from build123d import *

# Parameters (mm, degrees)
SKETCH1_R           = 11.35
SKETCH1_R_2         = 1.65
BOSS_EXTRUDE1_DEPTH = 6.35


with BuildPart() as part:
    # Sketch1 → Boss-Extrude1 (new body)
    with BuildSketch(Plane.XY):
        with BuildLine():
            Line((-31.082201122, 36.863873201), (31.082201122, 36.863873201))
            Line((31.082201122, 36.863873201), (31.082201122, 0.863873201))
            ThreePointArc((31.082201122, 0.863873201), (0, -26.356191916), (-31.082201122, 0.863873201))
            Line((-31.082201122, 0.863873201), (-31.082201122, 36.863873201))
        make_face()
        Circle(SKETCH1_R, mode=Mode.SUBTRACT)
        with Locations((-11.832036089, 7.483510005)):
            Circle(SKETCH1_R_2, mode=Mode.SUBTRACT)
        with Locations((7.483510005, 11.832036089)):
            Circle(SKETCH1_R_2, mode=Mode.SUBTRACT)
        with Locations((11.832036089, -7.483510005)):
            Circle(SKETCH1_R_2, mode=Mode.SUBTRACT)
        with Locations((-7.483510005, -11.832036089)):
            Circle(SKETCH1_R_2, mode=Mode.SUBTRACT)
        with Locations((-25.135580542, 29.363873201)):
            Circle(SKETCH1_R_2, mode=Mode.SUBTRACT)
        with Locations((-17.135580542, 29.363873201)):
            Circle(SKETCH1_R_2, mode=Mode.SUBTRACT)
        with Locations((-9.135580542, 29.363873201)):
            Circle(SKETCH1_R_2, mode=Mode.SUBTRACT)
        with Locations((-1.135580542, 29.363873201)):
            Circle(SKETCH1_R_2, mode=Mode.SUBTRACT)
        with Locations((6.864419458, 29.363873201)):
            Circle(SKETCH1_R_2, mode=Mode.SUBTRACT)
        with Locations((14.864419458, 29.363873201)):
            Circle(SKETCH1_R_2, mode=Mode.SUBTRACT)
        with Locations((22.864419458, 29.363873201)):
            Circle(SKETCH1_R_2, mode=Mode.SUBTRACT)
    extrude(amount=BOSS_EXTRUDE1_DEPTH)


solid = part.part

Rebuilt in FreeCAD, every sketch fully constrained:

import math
import FreeCAD as App
import Part
import Sketcher

doc = App.newDocument("Part")
body = doc.addObject("PartDesign::Body", "Body")

sketch1 = body.newObject("Sketcher::SketchObject", "Sketch")
sketch1.AttachmentSupport = (doc.getObject("XY_Plane"), [""])
sketch1.MapMode = "FlatFace"
sketch1.addGeometry([
    Part.LineSegment(App.Vector(31.1, 36.9, 0), App.Vector(-31.1, 36.9, 0)),
    Part.LineSegment(App.Vector(-31.1, 36.9, 0), App.Vector(-31.1, 0.9, 0)),
    Part.ArcOfCircle(Part.Circle(App.Vector(0, 5, 0), App.Vector(0, 0, 1), 31.4), math.radians(-172), math.radians(-8)),
    Part.LineSegment(App.Vector(31.1, 0.9, 0), App.Vector(31.1, 36.9, 0)),
    Part.Circle(App.Vector(11.8, -7.5, 0), App.Vector(0, 0, 1), 1.6),
    Part.Circle(App.Vector(0, 0, 0), App.Vector(0, 0, 1), 11.3),
    Part.Circle(App.Vector(-7.5, -11.8, 0), App.Vector(0, 0, 1), 1.6),
    Part.Circle(App.Vector(-11.8, 7.5, 0), App.Vector(0, 0, 1), 1.6),
    Part.Circle(App.Vector(7.5, 11.8, 0), App.Vector(0, 0, 1), 1.6),
    Part.Circle(App.Vector(22.9, 29.4, 0), App.Vector(0, 0, 1), 1.6),
    Part.Circle(App.Vector(14.9, 29.4, 0), App.Vector(0, 0, 1), 1.6),
    Part.Circle(App.Vector(6.9, 29.4, 0), App.Vector(0, 0, 1), 1.6),
    Part.Circle(App.Vector(-1.1, 29.4, 0), App.Vector(0, 0, 1), 1.6),
    Part.Circle(App.Vector(-9.1, 29.4, 0), App.Vector(0, 0, 1), 1.6),
    Part.Circle(App.Vector(-17.1, 29.4, 0), App.Vector(0, 0, 1), 1.6),
    Part.Circle(App.Vector(-25.1, 29.4, 0), App.Vector(0, 0, 1), 1.6),
], False)
sketch1.addConstraint([
    Sketcher.Constraint("Coincident", 0, 2, 1, 1),
    Sketcher.Constraint("Coincident", 1, 2, 2, 1),
    Sketcher.Constraint("Coincident", 2, 2, 3, 1),
    Sketcher.Constraint("Coincident", 3, 2, 0, 1),
    Sketcher.Constraint("Horizontal", 0),
    Sketcher.Constraint("Vertical", 1),
    Sketcher.Constraint("Vertical", 3),
    Sketcher.Constraint("Coincident", 5, 3, -1, 1),
    Sketcher.Constraint("Equal", 4, 6),
    Sketcher.Constraint("Equal", 6, 7),
    Sketcher.Constraint("Equal", 7, 8),
    Sketcher.Constraint("Equal", 8, 9),
    Sketcher.Constraint("Equal", 9, 10),
    Sketcher.Constraint("Equal", 10, 11),
    Sketcher.Constraint("Equal", 11, 12),
    Sketcher.Constraint("Equal", 12, 13),
    Sketcher.Constraint("Equal", 13, 14),
    Sketcher.Constraint("Equal", 14, 15),
    Sketcher.Constraint("Symmetric", 4, 3, 7, 3, -1, 1),
    Sketcher.Constraint("Symmetric", 6, 3, 8, 3, -1, 1),
    Sketcher.Constraint("Symmetric", 1, 2, 2, 2, -2),
    Sketcher.Constraint("Horizontal", 9, 3, 10, 3),
    Sketcher.Constraint("Horizontal", 10, 3, 11, 3),
    Sketcher.Constraint("Horizontal", 11, 3, 12, 3),
    Sketcher.Constraint("Horizontal", 12, 3, 13, 3),
    Sketcher.Constraint("Horizontal", 13, 3, 14, 3),
    Sketcher.Constraint("Horizontal", 14, 3, 15, 3),
    Sketcher.Constraint("Diameter", 4, 3.3),
    Sketcher.Constraint("Diameter", 5, 22.7),
    Sketcher.Constraint("DistanceY", 1, 2, 1, 1, 36.0),
    Sketcher.Constraint("DistanceY", -1, 1, 2, 3, 5.0),
    Sketcher.Constraint("DistanceX", 10, 3, 9, 3, 8.0),
    Sketcher.Constraint("DistanceX", 11, 3, 10, 3, 8.0),
    Sketcher.Constraint("DistanceX", 12, 3, 11, 3, 8.0),
    Sketcher.Constraint("DistanceX", 13, 3, 12, 3, 8.0),
    Sketcher.Constraint("DistanceX", 14, 3, 13, 3, 8.0),
    Sketcher.Constraint("DistanceX", 15, 3, 14, 3, 8.0),
    Sketcher.Constraint("DistanceY", 15, 3, 0, 2, 7.5),
    Sketcher.Constraint("Radius", 2, 31.356192),
    Sketcher.Constraint("DistanceX", 0, 2, -1, 1, 31.082201),
    Sketcher.Constraint("DistanceY", 4, 3, -1, 1, 7.48351),
    Sketcher.Constraint("DistanceX", 6, 3, -1, 1, 7.48351),
    Sketcher.Constraint("DistanceX", -1, 1, 9, 3, 22.864419),
    Sketcher.Constraint("DistanceY", 6, 3, 1, 2, 12.695909),
    Sketcher.Constraint("DistanceX", -1, 1, 4, 3, 11.832036),
])
pad1 = body.newObject("PartDesign::Pad", "Pad")
pad1.Profile = sketch1
pad1.Length = 6.35

doc.recompute()
